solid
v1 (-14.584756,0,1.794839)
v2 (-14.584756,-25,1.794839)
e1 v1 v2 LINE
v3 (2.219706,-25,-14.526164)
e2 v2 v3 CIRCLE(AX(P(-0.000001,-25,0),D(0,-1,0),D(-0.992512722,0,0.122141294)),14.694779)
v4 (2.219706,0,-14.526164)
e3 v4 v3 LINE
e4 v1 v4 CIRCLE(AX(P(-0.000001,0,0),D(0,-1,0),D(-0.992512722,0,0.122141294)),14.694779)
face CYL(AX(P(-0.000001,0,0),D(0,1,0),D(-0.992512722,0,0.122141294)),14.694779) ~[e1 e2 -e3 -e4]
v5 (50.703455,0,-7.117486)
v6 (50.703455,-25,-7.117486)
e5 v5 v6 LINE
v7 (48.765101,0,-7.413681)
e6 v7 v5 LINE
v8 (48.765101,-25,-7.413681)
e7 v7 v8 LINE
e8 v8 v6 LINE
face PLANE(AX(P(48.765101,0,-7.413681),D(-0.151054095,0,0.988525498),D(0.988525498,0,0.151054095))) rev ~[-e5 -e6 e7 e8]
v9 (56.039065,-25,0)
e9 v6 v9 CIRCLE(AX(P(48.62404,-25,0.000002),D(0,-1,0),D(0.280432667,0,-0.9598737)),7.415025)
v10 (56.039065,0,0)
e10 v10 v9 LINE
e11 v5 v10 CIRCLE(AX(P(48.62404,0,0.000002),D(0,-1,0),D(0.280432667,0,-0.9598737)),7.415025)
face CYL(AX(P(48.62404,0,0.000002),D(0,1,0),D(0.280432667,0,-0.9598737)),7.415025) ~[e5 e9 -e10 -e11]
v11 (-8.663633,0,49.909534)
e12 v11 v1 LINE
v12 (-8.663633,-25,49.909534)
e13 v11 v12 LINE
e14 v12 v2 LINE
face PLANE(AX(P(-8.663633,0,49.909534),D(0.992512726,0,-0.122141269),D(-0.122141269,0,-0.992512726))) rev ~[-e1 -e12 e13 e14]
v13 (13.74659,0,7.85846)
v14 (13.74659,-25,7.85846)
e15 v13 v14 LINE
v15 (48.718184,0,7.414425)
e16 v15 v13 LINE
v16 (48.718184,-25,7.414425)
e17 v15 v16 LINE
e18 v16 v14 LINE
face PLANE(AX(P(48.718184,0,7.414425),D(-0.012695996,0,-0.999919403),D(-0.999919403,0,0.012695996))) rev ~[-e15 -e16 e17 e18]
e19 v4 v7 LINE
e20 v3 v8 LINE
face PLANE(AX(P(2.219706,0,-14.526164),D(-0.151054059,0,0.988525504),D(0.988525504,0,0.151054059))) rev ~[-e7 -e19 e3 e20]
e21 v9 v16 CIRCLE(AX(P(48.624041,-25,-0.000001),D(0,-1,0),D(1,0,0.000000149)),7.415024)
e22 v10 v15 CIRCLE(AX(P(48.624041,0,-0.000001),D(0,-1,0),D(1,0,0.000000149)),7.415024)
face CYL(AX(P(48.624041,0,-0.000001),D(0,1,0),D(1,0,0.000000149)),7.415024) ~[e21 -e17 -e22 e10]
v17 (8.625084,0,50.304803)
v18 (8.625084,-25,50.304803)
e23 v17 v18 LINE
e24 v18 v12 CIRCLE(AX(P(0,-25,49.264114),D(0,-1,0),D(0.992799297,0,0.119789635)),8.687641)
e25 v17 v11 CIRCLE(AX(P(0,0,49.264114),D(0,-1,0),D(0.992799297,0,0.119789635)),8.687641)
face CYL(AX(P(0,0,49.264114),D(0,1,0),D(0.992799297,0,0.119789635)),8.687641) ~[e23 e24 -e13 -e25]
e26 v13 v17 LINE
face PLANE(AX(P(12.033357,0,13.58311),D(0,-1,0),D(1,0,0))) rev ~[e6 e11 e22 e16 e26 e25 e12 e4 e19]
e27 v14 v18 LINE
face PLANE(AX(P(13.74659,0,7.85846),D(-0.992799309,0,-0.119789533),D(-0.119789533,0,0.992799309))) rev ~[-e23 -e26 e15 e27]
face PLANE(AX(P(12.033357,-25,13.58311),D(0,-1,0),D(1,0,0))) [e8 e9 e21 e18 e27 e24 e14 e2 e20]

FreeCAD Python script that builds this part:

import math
import FreeCAD as App
import Part
import Sketcher
from FreeCAD import Vector
Q = App.Units.Quantity

doc = App.newDocument("Part")
body = doc.addObject("PartDesign::Body", "Body")

# Sketch on XZ plane
sketch1 = doc.addObject("Sketcher::SketchObject", "Sketch")
body.addObject(sketch1)
sketch1.AttachmentSupport = (doc.XZ_Plane, [""])
sketch1.MapMode = "FlatFace"
sketch1.addGeometry([
    Part.LineSegment(Vector(13.74659, 7.85846, 0), Vector(8.625084, 50.304803, 0)),  # 0
    Part.ArcOfCircle(Part.Circle(Vector(0, 49.264114, 0), Vector(0, 0, 1), 8.687641), math.radians(6.879962), math.radians(175.739469)),  # 1
    Part.LineSegment(Vector(-8.663633, 49.909534, 0), Vector(-14.584756, 1.794839, 0)),  # 2
    Part.ArcOfCircle(Part.Circle(Vector(-0.000001, 0, 0), Vector(0, 0, 1), 14.694779), math.radians(172.984301), math.radians(278.688019)),  # 3
    Part.LineSegment(Vector(2.219706, -14.526164, 0), Vector(48.765101, -7.413681, 0)),  # 4
    Part.LineSegment(Vector(48.765101, -7.413681, 0), Vector(50.703455, -7.117486, 0)),  # 5
    Part.ArcOfCircle(Part.Circle(Vector(48.62404, 0.000002, 0), Vector(0, 0, 1), 7.415025), math.radians(-73.713971), math.radians(-0.000014)),  # 6
    Part.ArcOfCircle(Part.Circle(Vector(48.624041, -0.000001, 0), Vector(0, 0, 1), 7.415024), math.radians(0.000009), math.radians(89.272541)),  # 7
    Part.LineSegment(Vector(48.718184, 7.414425, 0), Vector(13.74659, 7.85846, 0)),  # 8
], False)
sketch1.addConstraint([
    Sketcher.Constraint("Coincident", 0, 2, 1, 1),
    Sketcher.Constraint("Coincident", 1, 2, 2, 1),
    Sketcher.Constraint("Coincident", 2, 2, 3, 1),
    Sketcher.Constraint("Coincident", 3, 2, 4, 1),
    Sketcher.Constraint("Coincident", 4, 2, 5, 1),
    Sketcher.Constraint("Coincident", 5, 2, 6, 1),
    Sketcher.Constraint("Coincident", 6, 2, 7, 1),
    Sketcher.Constraint("Coincident", 7, 2, 8, 1),
    Sketcher.Constraint("Coincident", 8, 2, 0, 1),
    Sketcher.Constraint("Coincident", 3, 3, -1, 1),
    Sketcher.Constraint("Coincident", 7, 3, 6, 3),
    Sketcher.Constraint("PointOnObject", 1, 3, -2),
    Sketcher.Constraint("PointOnObject", 6, 3, -1),
    Sketcher.Constraint("PointOnObject", 6, 2, -1),
    Sketcher.Constraint("Radius", 1, Q("8.687641 mm")),
    Sketcher.Constraint("Radius", 3, Q("14.694779 mm")),
    Sketcher.Constraint("Radius", 6, Q("7.415025 mm")),
    Sketcher.Constraint("DistanceX", -1, 1, 4, 2, Q("48.765101 mm")),
    Sketcher.Constraint("DistanceY", 6, 3, 0, 2, Q("50.304801 mm")),
    Sketcher.Constraint("Distance", 2, Q("48.477661 mm")),
    Sketcher.Constraint("Distance", 4, Q("47.085679 mm")),
    Sketcher.Constraint("DistanceX", -1, 1, 6, 3, Q("48.62404 mm")),
    Sketcher.Constraint("DistanceY", -1, 1, 2, 2, Q("1.794839 mm")),
    Sketcher.Constraint("DistanceY", 4, 2, -1, 1, Q("7.413681 mm")),
    Sketcher.Constraint("DistanceX", -1, 1, 8, 2, Q("13.74659 mm")),
    Sketcher.Constraint("DistanceY", -1, 1, 8, 2, Q("7.85846 mm")),
    Sketcher.Constraint("DistanceY", 6, 3, 1, 3, Q("49.264112 mm")),
    Sketcher.Constraint("DistanceX", 3, 2, 5, 2, Q("48.483749 mm")),
    Sketcher.Constraint("DistanceX", 7, 2, 6, 2, Q("7.320881 mm")),
])
pad1 = doc.addObject("PartDesign::Pad", "Pad")
body.addObject(pad1)
pad1.Profile = sketch1
pad1.Length = 25

doc.recompute()
